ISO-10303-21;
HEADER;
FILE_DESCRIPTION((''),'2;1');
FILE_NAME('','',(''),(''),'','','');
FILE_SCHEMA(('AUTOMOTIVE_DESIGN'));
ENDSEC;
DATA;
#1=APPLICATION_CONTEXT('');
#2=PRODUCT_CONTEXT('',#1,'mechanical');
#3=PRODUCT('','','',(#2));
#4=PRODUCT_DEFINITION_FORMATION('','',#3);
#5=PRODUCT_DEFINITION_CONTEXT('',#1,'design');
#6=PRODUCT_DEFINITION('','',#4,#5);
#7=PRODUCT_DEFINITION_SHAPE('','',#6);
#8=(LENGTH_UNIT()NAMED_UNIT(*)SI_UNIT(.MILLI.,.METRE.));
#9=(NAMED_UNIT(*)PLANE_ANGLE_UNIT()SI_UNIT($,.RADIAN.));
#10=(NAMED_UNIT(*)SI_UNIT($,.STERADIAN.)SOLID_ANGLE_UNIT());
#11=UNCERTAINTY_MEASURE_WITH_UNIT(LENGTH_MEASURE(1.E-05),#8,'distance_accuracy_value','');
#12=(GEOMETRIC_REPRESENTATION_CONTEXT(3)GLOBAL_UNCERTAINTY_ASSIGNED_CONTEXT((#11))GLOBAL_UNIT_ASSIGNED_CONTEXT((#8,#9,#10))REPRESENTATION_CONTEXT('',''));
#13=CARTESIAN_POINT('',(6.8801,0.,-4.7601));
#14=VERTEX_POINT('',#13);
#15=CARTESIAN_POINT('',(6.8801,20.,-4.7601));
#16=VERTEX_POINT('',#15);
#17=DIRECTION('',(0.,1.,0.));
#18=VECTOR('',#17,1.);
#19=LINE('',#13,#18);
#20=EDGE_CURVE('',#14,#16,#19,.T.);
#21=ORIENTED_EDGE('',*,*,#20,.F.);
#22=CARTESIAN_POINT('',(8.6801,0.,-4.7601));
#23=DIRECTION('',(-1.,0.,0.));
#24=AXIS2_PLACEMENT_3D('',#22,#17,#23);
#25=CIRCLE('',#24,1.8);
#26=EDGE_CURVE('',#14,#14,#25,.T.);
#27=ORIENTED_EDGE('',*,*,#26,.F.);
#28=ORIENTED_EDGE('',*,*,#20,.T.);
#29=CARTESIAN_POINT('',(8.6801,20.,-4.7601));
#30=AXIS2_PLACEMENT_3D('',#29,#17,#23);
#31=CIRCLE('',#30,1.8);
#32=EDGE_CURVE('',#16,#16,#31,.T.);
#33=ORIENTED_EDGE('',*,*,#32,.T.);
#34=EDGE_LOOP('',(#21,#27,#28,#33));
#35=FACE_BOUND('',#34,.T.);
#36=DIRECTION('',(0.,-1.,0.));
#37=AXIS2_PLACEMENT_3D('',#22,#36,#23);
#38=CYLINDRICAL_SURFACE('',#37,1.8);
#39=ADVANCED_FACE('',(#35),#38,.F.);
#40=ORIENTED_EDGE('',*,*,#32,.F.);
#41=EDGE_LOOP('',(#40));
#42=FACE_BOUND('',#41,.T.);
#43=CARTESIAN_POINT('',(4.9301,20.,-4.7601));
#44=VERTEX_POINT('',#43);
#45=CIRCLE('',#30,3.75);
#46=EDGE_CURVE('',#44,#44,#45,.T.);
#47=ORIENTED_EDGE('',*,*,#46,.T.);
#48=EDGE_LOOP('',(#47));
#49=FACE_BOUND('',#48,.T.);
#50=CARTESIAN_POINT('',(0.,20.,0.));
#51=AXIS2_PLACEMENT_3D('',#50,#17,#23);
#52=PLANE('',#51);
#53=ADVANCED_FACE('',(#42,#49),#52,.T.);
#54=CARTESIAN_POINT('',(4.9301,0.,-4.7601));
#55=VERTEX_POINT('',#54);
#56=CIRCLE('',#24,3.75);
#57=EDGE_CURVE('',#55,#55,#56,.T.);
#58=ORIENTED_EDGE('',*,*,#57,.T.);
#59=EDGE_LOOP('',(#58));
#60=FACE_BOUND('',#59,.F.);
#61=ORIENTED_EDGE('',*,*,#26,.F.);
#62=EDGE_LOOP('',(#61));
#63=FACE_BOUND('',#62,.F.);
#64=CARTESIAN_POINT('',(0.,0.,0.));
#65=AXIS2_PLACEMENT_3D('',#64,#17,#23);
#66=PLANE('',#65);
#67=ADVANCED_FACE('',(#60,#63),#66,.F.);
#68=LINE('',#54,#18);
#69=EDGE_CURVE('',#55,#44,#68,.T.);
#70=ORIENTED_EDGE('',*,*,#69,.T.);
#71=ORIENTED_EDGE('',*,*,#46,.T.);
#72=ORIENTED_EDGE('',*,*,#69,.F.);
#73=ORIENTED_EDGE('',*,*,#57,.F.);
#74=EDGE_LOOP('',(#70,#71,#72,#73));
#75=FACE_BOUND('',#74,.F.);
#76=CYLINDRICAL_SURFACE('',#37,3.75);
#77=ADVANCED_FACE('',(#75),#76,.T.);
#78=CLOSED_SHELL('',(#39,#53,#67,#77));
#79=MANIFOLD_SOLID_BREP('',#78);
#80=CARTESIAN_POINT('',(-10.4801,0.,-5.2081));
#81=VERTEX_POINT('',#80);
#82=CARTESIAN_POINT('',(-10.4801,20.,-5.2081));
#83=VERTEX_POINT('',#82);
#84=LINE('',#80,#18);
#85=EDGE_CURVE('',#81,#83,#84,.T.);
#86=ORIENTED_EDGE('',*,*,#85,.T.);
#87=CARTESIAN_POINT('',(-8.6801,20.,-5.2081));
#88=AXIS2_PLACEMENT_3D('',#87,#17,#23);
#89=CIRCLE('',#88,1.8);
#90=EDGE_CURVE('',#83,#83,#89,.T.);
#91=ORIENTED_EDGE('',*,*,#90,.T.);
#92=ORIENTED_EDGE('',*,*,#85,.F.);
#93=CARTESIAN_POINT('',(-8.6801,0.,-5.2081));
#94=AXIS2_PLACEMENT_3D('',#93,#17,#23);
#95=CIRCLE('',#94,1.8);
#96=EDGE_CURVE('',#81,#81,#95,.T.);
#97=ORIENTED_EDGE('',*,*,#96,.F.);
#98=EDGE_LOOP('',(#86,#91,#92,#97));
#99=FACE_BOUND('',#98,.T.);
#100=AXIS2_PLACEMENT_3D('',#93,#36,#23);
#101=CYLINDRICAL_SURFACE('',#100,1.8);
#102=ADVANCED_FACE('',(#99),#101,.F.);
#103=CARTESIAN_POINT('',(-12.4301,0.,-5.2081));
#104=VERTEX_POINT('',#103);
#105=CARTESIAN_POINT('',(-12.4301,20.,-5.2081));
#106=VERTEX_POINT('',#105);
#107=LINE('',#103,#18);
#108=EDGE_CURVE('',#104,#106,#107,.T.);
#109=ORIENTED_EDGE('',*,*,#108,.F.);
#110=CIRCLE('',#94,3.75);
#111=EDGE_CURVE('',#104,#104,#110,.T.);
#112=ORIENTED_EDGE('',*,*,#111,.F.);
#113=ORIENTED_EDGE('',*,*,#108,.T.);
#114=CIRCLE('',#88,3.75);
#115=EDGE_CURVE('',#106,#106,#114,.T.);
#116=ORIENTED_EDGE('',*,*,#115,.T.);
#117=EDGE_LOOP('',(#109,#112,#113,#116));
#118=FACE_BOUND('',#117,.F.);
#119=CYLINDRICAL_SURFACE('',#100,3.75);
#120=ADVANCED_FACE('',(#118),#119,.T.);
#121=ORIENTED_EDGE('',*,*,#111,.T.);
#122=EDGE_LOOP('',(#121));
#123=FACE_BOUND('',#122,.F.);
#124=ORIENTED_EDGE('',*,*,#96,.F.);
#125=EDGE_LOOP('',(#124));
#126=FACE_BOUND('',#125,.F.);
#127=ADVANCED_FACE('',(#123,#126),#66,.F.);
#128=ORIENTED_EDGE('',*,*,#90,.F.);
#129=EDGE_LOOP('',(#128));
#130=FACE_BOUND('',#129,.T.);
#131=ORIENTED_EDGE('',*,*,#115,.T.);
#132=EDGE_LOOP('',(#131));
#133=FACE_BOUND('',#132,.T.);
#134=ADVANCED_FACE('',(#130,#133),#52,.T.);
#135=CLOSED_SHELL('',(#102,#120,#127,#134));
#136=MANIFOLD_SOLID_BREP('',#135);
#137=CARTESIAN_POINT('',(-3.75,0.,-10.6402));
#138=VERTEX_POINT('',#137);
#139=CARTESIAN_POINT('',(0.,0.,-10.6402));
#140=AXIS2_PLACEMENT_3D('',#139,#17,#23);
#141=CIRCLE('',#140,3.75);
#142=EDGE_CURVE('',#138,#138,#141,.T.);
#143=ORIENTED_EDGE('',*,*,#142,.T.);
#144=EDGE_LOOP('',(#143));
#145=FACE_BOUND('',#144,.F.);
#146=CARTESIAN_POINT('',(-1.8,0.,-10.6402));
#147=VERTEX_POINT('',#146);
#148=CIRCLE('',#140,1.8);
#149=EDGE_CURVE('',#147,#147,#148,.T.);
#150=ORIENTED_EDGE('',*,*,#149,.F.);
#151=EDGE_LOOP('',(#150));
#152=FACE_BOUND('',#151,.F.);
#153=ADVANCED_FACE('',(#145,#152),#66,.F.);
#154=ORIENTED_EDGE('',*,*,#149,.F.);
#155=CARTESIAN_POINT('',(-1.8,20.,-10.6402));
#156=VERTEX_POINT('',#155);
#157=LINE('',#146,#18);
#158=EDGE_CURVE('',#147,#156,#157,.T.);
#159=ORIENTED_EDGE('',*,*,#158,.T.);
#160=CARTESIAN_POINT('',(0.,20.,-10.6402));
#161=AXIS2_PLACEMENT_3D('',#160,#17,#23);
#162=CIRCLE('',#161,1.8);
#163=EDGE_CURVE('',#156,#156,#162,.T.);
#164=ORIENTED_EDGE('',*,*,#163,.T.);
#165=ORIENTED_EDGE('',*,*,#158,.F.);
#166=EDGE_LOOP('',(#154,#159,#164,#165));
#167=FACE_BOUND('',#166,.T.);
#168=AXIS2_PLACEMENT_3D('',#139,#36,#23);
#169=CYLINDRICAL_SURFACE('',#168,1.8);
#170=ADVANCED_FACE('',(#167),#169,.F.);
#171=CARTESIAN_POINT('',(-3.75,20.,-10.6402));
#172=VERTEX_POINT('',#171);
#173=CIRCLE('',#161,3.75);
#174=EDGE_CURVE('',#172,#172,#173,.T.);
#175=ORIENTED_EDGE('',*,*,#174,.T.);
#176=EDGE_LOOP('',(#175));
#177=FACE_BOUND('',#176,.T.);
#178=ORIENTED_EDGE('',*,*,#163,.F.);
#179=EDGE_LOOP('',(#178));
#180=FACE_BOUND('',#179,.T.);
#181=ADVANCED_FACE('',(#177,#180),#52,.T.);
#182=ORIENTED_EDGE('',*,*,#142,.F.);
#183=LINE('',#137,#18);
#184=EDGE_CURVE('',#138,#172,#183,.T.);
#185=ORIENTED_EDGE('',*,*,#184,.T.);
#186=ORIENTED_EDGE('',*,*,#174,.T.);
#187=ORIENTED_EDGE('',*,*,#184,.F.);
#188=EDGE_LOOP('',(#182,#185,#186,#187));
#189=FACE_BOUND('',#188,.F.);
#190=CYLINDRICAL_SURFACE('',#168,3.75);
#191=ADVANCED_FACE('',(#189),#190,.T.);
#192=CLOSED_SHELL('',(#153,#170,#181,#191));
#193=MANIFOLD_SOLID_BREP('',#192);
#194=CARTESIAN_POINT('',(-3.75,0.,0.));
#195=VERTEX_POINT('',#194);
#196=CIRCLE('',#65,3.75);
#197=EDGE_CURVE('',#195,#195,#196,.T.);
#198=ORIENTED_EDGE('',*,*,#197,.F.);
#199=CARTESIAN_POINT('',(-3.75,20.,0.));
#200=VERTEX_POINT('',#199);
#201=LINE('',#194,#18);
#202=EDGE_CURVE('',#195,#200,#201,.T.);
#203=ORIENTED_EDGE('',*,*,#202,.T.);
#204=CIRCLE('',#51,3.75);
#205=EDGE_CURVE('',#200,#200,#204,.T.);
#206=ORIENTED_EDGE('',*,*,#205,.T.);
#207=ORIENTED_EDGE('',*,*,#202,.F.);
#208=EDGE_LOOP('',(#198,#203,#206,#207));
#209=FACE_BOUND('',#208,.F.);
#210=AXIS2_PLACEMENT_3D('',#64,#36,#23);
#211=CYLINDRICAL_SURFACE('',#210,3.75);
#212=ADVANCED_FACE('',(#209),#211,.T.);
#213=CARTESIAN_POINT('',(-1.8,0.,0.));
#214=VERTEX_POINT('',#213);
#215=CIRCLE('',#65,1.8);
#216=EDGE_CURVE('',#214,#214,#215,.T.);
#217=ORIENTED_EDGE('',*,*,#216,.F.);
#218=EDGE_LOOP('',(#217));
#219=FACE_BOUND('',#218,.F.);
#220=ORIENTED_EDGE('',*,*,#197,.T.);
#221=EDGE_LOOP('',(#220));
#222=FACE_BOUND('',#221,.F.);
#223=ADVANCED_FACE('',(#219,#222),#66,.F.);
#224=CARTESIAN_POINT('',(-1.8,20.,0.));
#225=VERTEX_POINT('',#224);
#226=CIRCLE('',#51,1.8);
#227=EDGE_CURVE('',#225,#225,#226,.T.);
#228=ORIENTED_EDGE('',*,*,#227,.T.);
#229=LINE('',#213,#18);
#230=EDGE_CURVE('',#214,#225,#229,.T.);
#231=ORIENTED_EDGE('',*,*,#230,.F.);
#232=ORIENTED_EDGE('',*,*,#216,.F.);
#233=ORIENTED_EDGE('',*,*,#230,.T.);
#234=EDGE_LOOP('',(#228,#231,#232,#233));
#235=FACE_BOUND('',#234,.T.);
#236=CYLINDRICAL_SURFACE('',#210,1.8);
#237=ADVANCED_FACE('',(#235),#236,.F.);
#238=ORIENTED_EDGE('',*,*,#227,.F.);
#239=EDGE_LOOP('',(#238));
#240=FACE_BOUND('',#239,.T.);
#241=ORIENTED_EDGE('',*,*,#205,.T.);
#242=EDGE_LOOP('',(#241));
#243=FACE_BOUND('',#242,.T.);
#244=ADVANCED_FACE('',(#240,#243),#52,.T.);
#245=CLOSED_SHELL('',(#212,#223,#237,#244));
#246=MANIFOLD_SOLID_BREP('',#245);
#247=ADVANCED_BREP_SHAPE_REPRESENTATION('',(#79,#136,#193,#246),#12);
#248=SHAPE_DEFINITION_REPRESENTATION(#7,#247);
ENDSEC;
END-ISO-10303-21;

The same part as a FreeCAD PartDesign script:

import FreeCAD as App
import Part
import Sketcher
from FreeCAD import Vector
Q = App.Units.Quantity

doc = App.newDocument("Part")
body = doc.addObject("PartDesign::Body", "Body")
body.AllowCompound = True

# Sketch on XZ plane
sketch1 = doc.addObject("Sketcher::SketchObject", "Sketch")
body.addObject(sketch1)
sketch1.AttachmentSupport = (doc.XZ_Plane, [""])
sketch1.MapMode = "FlatFace"
sketch1.addGeometry(Part.Circle(Vector(0, 0, 0), Vector(0, 0, 1), 3.75), False)
sketch1.addGeometry(Part.Circle(Vector(0, 0, 0), Vector(0, 0, 1), 1.8), False)
sketch1.addGeometry(Part.Circle(Vector(0, -10.6402, 0), Vector(0, 0, 1), 3.75), False)
sketch1.addGeometry(Part.Circle(Vector(0, -10.6402, 0), Vector(0, 0, 1), 1.8), False)
sketch1.addGeometry(Part.Circle(Vector(-8.6801, -5.2081, 0), Vector(0, 0, 1), 3.75), False)
sketch1.addGeometry(Part.Circle(Vector(-8.6801, -5.2081, 0), Vector(0, 0, 1), 1.8), False)
sketch1.addGeometry(Part.Circle(Vector(8.6801, -4.7601, 0), Vector(0, 0, 1), 3.75), False)
sketch1.addGeometry(Part.Circle(Vector(8.6801, -4.7601, 0), Vector(0, 0, 1), 1.8), False)
sketch1.addConstraint(Sketcher.Constraint("Coincident", 0, 3, -1, 1))
sketch1.addConstraint(Sketcher.Constraint("Coincident", 1, 3, -1, 1))
sketch1.addConstraint(Sketcher.Constraint("Coincident", 3, 3, 2, 3))
sketch1.addConstraint(Sketcher.Constraint("Coincident", 5, 3, 4, 3))
sketch1.addConstraint(Sketcher.Constraint("Coincident", 7, 3, 6, 3))
sketch1.addConstraint(Sketcher.Constraint("Equal", 0, 2))
sketch1.addConstraint(Sketcher.Constraint("Equal", 1, 3))
sketch1.addConstraint(Sketcher.Constraint("Equal", 2, 4))
sketch1.addConstraint(Sketcher.Constraint("Equal", 3, 5))
sketch1.addConstraint(Sketcher.Constraint("Equal", 4, 6))
sketch1.addConstraint(Sketcher.Constraint("Equal", 5, 7))
sketch1.addConstraint(Sketcher.Constraint("PointOnObject", 2, 3, -2))
sketch1.addConstraint(Sketcher.Constraint("Diameter", 0, Q("7.5 mm")))
sketch1.addConstraint(Sketcher.Constraint("Diameter", 1, Q("3.6 mm")))
sketch1.addConstraint(Sketcher.Constraint("DistanceX", 4, 3, -1, 1, Q("8.68 mm")))
sketch1.addConstraint(Sketcher.Constraint("DistanceX", -1, 1, 6, 3, Q("8.68 mm")))
sketch1.addConstraint(Sketcher.Constraint("DistanceY", 6, 3, -1, 1, Q("4.76 mm")))
sketch1.addConstraint(Sketcher.Constraint("DistanceY", 2, 3, 6, 3, Q("5.88 mm")))
sketch1.addConstraint(Sketcher.Constraint("DistanceY", 4, 3, -1, 1, Q("5.208 mm")))
pad1 = doc.addObject("PartDesign::Pad", "Pad")
body.addObject(pad1)
pad1.Profile = sketch1
pad1.Length = 20
pad1.Reversed = True

doc.recompute()
